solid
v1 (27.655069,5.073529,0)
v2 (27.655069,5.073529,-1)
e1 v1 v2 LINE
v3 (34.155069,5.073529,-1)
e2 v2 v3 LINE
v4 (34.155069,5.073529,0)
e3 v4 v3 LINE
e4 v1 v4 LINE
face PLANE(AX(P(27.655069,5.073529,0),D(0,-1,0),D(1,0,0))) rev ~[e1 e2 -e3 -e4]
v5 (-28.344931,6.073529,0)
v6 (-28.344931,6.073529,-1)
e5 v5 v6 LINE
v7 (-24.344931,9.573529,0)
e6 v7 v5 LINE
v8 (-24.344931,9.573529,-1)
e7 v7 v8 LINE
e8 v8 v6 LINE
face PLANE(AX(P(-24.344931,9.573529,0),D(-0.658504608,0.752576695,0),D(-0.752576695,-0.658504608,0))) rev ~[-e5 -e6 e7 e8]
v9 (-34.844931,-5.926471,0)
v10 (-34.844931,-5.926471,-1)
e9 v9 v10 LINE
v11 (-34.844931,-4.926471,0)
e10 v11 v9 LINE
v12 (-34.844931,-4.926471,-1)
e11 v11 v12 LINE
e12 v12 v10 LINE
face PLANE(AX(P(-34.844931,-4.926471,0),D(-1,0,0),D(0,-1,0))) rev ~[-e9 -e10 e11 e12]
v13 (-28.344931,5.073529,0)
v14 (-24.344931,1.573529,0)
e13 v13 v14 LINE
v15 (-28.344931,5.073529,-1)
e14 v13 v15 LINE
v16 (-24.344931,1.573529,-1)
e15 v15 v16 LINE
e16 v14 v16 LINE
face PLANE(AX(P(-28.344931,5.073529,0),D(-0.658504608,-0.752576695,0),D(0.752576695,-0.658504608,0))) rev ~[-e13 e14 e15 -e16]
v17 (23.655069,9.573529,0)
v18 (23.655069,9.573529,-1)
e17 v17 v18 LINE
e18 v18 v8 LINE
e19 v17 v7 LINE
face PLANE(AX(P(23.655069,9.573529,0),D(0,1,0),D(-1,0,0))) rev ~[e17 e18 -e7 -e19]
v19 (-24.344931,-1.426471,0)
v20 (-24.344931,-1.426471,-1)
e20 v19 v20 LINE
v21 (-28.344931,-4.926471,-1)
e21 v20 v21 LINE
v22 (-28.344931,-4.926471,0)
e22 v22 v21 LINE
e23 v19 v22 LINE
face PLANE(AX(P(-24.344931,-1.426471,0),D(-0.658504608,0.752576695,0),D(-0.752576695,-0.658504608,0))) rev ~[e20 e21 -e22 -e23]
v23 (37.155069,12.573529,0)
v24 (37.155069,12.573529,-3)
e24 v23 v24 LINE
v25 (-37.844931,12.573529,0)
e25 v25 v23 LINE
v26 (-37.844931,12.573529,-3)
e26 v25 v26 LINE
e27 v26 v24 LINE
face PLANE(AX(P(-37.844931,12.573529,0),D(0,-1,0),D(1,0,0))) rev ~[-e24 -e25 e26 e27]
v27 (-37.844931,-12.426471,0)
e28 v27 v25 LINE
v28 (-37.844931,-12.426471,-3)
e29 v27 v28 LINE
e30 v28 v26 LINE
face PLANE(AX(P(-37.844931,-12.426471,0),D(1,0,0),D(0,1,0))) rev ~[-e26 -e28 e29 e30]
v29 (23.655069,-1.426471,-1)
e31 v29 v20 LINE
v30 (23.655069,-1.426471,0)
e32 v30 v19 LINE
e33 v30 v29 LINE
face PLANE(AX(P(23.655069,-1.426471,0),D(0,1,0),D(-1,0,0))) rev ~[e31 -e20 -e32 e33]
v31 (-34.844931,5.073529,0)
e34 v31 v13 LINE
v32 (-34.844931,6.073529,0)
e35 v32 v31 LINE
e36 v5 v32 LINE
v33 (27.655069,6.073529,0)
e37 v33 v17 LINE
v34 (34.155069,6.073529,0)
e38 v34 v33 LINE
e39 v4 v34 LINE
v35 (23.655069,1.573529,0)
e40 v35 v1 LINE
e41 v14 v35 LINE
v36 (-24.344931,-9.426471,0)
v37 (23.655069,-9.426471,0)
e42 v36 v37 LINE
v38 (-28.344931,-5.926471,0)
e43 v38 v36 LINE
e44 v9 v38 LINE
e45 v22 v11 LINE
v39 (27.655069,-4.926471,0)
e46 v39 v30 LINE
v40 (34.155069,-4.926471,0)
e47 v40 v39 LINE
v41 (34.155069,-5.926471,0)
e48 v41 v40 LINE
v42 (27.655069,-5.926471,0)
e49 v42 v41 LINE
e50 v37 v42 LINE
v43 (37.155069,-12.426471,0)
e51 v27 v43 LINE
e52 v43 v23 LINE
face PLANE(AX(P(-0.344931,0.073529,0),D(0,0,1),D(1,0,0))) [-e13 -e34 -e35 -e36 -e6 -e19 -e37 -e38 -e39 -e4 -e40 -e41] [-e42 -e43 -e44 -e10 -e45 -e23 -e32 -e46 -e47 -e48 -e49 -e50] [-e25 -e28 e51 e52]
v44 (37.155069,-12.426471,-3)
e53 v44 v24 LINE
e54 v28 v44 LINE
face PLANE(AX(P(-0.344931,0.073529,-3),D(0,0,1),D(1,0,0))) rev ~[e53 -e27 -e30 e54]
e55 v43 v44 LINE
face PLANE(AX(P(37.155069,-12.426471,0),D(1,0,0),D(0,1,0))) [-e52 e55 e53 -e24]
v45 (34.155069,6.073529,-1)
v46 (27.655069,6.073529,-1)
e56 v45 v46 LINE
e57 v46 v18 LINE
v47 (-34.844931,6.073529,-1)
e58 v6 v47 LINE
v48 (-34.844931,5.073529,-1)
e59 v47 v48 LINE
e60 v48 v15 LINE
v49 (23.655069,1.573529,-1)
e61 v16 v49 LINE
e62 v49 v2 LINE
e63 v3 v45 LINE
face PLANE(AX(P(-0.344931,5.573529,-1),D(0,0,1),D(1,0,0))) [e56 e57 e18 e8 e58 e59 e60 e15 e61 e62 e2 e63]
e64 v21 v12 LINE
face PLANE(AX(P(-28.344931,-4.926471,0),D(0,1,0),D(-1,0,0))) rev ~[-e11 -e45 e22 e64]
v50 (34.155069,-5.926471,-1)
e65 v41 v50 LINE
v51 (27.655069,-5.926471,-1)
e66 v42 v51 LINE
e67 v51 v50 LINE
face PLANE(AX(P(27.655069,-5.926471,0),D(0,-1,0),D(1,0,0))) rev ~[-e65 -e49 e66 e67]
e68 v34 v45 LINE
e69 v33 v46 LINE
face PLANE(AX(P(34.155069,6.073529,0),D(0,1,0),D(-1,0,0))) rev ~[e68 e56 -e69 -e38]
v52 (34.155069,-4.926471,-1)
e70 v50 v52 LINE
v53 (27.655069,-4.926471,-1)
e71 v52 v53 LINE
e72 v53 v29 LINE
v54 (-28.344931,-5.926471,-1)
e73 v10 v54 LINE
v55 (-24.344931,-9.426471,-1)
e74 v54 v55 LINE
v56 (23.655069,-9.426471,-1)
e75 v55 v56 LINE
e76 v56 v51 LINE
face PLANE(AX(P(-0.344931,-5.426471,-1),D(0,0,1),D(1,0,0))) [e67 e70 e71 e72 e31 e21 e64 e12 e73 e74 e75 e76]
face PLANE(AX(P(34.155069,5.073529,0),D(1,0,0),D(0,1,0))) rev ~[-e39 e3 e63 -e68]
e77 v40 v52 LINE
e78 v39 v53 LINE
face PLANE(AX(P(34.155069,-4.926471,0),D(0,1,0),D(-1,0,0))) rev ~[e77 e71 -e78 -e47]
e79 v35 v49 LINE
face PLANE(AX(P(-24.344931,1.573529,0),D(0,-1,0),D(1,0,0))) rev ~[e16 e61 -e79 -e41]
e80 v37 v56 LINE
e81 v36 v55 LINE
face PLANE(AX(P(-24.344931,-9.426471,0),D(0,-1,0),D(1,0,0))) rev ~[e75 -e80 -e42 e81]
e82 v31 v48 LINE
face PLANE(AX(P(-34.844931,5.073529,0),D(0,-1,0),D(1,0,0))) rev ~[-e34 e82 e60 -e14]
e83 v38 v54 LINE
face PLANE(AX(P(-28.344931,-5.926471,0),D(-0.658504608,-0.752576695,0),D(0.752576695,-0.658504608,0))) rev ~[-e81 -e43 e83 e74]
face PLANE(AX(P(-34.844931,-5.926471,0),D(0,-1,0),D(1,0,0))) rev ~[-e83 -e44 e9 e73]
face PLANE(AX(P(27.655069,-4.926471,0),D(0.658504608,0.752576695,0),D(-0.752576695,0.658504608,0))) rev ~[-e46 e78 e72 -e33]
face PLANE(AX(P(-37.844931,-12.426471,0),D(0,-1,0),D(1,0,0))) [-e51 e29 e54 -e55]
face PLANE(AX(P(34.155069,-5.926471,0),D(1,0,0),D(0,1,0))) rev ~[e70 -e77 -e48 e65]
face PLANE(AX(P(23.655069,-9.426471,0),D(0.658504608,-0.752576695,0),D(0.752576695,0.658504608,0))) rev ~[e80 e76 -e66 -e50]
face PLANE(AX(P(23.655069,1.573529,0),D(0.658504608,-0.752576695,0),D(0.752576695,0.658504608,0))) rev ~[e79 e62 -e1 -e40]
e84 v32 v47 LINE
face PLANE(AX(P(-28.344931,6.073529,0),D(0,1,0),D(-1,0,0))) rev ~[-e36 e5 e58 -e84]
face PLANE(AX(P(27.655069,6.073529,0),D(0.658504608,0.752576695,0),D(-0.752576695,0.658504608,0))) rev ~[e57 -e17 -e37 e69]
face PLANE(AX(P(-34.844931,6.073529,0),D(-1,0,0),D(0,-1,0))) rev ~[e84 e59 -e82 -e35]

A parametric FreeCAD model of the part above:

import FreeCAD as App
import Part
import Sketcher
from FreeCAD import Vector
Q = App.Units.Quantity

doc = App.newDocument("Part")
body = doc.addObject("PartDesign::Body", "Body")

sketch1 = doc.addObject("Sketcher::SketchObject", "Sketch")
body.addObject(sketch1)
sketch1.AttachmentSupport = (doc.XY_Plane, [""])
sketch1.MapMode = "FlatFace"
sketch1.addGeometry([
    Part.LineSegment(Vector(-38, 13, 0), Vector(-38, -12, 0)),
    Part.LineSegment(Vector(-38, -12, 0), Vector(37, -12, 0)),
    Part.LineSegment(Vector(37, -12, 0), Vector(37, 13, 0)),
    Part.LineSegment(Vector(37, 13, 0), Vector(-38, 13, 0)),
], False)
sketch1.addConstraint([
    Sketcher.Constraint("Coincident", 0, 2, 1, 1),
    Sketcher.Constraint("Coincident", 1, 2, 2, 1),
    Sketcher.Constraint("Coincident", 2, 2, 3, 1),
    Sketcher.Constraint("Coincident", 3, 2, 0, 1),
    Sketcher.Constraint("Vertical", 0),
    Sketcher.Constraint("Horizontal", 1),
    Sketcher.Constraint("Vertical", 2),
    Sketcher.Constraint("Horizontal", 3),
    Sketcher.Constraint("DistanceX", 1, 1, 1, 2, Q("75 mm")),
    Sketcher.Constraint("DistanceY", 0, 2, 0, 1, Q("25 mm")),
    Sketcher.Constraint("DistanceX", 0, 2, -1, 1, Q("37.844931 mm")),
    Sketcher.Constraint("DistanceY", 0, 2, -1, 1, Q("12.426471 mm")),
])
pad1 = doc.addObject("PartDesign::Pad", "Pad")
body.addObject(pad1)
pad1.Profile = sketch1
pad1.Length = 3
pad1.Reversed = True

sketch2 = doc.addObject("Sketcher::SketchObject", "Sketch001")
body.addObject(sketch2)
sketch2.AttachmentSupport = (doc.XY_Plane, [""])
sketch2.MapMode = "FlatFace"
sketch2.addGeometry([
    Part.LineSegment(Vector(-24.3, -1.4, 0), Vector(-28.3, -4.9, 0)),
    Part.LineSegment(Vector(-28.3, -4.9, 0), Vector(-34.8, -4.9, 0)),
    Part.LineSegment(Vector(-34.8, -4.9, 0), Vector(-34.8, -5.9, 0)),
    Part.LineSegment(Vector(-34.8, -5.9, 0), Vector(-28.3, -5.9, 0)),
    Part.LineSegment(Vector(-28.3, -5.9, 0), Vector(-24.3, -9.4, 0)),
    Part.LineSegment(Vector(-24.3, -9.4, 0), Vector(23.7, -9.4, 0)),
    Part.LineSegment(Vector(23.7, -9.4, 0), Vector(27.7, -5.9, 0)),
    Part.LineSegment(Vector(27.7, -5.9, 0), Vector(34.2, -5.9, 0)),
    Part.LineSegment(Vector(34.2, -5.9, 0), Vector(34.2, -4.9, 0)),
    Part.LineSegment(Vector(34.2, -4.9, 0), Vector(27.7, -4.9, 0)),
    Part.LineSegment(Vector(27.7, -4.9, 0), Vector(23.7, -1.4, 0)),
    Part.LineSegment(Vector(23.7, -1.4, 0), Vector(-24.3, -1.4, 0)),
    Part.LineSegment(Vector(-24.3, 9.6, 0), Vector(-28.3, 6.1, 0)),
    Part.LineSegment(Vector(-28.3, 6.1, 0), Vector(-34.8, 6.1, 0)),
    Part.LineSegment(Vector(-34.8, 6.1, 0), Vector(-34.8, 5.1, 0)),
    Part.LineSegment(Vector(-34.8, 5.1, 0), Vector(-28.3, 5.1, 0)),
    Part.LineSegment(Vector(-28.3, 5.1, 0), Vector(-24.3, 1.6, 0)),
    Part.LineSegment(Vector(-24.3, 1.6, 0), Vector(23.7, 1.6, 0)),
    Part.LineSegment(Vector(23.7, 1.6, 0), Vector(27.7, 5.1, 0)),
    Part.LineSegment(Vector(27.7, 5.1, 0), Vector(34.2, 5.1, 0)),
    Part.LineSegment(Vector(34.2, 5.1, 0), Vector(34.2, 6.1, 0)),
    Part.LineSegment(Vector(34.2, 6.1, 0), Vector(27.7, 6.1, 0)),
    Part.LineSegment(Vector(27.7, 6.1, 0), Vector(23.7, 9.6, 0)),
    Part.LineSegment(Vector(23.7, 9.6, 0), Vector(-24.3, 9.6, 0)),
], False)
sketch2.addConstraint([
    Sketcher.Constraint("Coincident", 0, 2, 1, 1),
    Sketcher.Constraint("Coincident", 1, 2, 2, 1),
    Sketcher.Constraint("Coincident", 2, 2, 3, 1),
    Sketcher.Constraint("Coincident", 3, 2, 4, 1),
    Sketcher.Constraint("Coincident", 4, 2, 5, 1),
    Sketcher.Constraint("Coincident", 5, 2, 6, 1),
    Sketcher.Constraint("Coincident", 6, 2, 7, 1),
    Sketcher.Constraint("Coincident", 7, 2, 8, 1),
    Sketcher.Constraint("Coincident", 8, 2, 9, 1),
    Sketcher.Constraint("Coincident", 9, 2, 10, 1),
    Sketcher.Constraint("Coincident", 10, 2, 11, 1),
    Sketcher.Constraint("Coincident", 11, 2, 0, 1),
    Sketcher.Constraint("Coincident", 12, 2, 13, 1),
    Sketcher.Constraint("Coincident", 13, 2, 14, 1),
    Sketcher.Constraint("Coincident", 14, 2, 15, 1),
    Sketcher.Constraint("Coincident", 15, 2, 16, 1),
    Sketcher.Constraint("Coincident", 16, 2, 17, 1),
    Sketcher.Constraint("Coincident", 17, 2, 18, 1),
    Sketcher.Constraint("Coincident", 18, 2, 19, 1),
    Sketcher.Constraint("Coincident", 19, 2, 20, 1),
    Sketcher.Constraint("Coincident", 20, 2, 21, 1),
    Sketcher.Constraint("Coincident", 21, 2, 22, 1),
    Sketcher.Constraint("Coincident", 22, 2, 23, 1),
    Sketcher.Constraint("Coincident", 23, 2, 12, 1),
    Sketcher.Constraint("Horizontal", 1),
    Sketcher.Constraint("Vertical", 2),
    Sketcher.Constraint("Horizontal", 3),
    Sketcher.Constraint("Horizontal", 5),
    Sketcher.Constraint("Horizontal", 7),
    Sketcher.Constraint("Vertical", 8),
    Sketcher.Constraint("Horizontal", 9),
    Sketcher.Constraint("Horizontal", 11),
    Sketcher.Constraint("Horizontal", 13),
    Sketcher.Constraint("Vertical", 14),
    Sketcher.Constraint("Horizontal", 15),
    Sketcher.Constraint("Horizontal", 17),
    Sketcher.Constraint("Horizontal", 19),
    Sketcher.Constraint("Vertical", 20),
    Sketcher.Constraint("Horizontal", 21),
    Sketcher.Constraint("Horizontal", 23),
    Sketcher.Constraint("Parallel", 0, 6),
    Sketcher.Constraint("Parallel", 4, 10),
    Sketcher.Constraint("Parallel", 6, 12),
    Sketcher.Constraint("Parallel", 10, 16),
    Sketcher.Constraint("Parallel", 12, 18),
    Sketcher.Constraint("Parallel", 16, 22),
    Sketcher.Constraint("Horizontal", 3, 2, 6, 2),
    Sketcher.Constraint("Horizontal", 1, 2, 8, 2),
    Sketcher.Constraint("Horizontal", 15, 2, 18, 2),
    Sketcher.Constraint("Horizontal", 13, 2, 20, 2),
    Sketcher.Constraint("Vertical", 0, 2, 3, 2),
    Sketcher.Constraint("Vertical", 6, 2, 9, 2),
    Sketcher.Constraint("Vertical", 5, 2, 10, 2),
    Sketcher.Constraint("Vertical", 4, 2, 11, 2),
    Sketcher.Constraint("Vertical", 3, 2, 12, 2),
    Sketcher.Constraint("Vertical", 2, 2, 13, 2),
    Sketcher.Constraint("Vertical", 12, 2, 15, 2),
    Sketcher.Constraint("Vertical", 11, 2, 16, 2),
    Sketcher.Constraint("Vertical", 10, 2, 17, 2),
    Sketcher.Constraint("Vertical", 8, 2, 19, 2),
    Sketcher.Constraint("Vertical", 18, 2, 21, 2),
    Sketcher.Constraint("Vertical", 17, 2, 22, 2),
    Sketcher.Constraint("Equal", 3, 7),
    Sketcher.Constraint("Equal", 8, 14),
    Sketcher.Constraint("DistanceX", 5, 1, 5, 2, Q("48 mm")),
    Sketcher.Constraint("DistanceY", 2, 2, 2, 1, Q("1 mm")),
    Sketcher.Constraint("DistanceX", 1, 2, 1, 1, Q("6.5 mm")),
    Sketcher.Constraint("DistanceX", 3, 2, 4, 2, Q("4 mm")),
    Sketcher.Constraint("DistanceY", 5, 2, 10, 2, Q("8 mm")),
    Sketcher.Constraint("DistanceY", 0, 2, 12, 2, Q("11 mm")),
    Sketcher.Constraint("DistanceX", 0, 2, -1, 1, Q("28.344931 mm")),
    Sketcher.Constraint("DistanceY", 0, 2, -1, 1, Q("4.926471 mm")),
])
pocket1 = doc.addObject("PartDesign::Pocket", "Pocket")
body.addObject(pocket1)
pocket1.Profile = sketch2
pocket1.Length = 1

doc.recompute()
